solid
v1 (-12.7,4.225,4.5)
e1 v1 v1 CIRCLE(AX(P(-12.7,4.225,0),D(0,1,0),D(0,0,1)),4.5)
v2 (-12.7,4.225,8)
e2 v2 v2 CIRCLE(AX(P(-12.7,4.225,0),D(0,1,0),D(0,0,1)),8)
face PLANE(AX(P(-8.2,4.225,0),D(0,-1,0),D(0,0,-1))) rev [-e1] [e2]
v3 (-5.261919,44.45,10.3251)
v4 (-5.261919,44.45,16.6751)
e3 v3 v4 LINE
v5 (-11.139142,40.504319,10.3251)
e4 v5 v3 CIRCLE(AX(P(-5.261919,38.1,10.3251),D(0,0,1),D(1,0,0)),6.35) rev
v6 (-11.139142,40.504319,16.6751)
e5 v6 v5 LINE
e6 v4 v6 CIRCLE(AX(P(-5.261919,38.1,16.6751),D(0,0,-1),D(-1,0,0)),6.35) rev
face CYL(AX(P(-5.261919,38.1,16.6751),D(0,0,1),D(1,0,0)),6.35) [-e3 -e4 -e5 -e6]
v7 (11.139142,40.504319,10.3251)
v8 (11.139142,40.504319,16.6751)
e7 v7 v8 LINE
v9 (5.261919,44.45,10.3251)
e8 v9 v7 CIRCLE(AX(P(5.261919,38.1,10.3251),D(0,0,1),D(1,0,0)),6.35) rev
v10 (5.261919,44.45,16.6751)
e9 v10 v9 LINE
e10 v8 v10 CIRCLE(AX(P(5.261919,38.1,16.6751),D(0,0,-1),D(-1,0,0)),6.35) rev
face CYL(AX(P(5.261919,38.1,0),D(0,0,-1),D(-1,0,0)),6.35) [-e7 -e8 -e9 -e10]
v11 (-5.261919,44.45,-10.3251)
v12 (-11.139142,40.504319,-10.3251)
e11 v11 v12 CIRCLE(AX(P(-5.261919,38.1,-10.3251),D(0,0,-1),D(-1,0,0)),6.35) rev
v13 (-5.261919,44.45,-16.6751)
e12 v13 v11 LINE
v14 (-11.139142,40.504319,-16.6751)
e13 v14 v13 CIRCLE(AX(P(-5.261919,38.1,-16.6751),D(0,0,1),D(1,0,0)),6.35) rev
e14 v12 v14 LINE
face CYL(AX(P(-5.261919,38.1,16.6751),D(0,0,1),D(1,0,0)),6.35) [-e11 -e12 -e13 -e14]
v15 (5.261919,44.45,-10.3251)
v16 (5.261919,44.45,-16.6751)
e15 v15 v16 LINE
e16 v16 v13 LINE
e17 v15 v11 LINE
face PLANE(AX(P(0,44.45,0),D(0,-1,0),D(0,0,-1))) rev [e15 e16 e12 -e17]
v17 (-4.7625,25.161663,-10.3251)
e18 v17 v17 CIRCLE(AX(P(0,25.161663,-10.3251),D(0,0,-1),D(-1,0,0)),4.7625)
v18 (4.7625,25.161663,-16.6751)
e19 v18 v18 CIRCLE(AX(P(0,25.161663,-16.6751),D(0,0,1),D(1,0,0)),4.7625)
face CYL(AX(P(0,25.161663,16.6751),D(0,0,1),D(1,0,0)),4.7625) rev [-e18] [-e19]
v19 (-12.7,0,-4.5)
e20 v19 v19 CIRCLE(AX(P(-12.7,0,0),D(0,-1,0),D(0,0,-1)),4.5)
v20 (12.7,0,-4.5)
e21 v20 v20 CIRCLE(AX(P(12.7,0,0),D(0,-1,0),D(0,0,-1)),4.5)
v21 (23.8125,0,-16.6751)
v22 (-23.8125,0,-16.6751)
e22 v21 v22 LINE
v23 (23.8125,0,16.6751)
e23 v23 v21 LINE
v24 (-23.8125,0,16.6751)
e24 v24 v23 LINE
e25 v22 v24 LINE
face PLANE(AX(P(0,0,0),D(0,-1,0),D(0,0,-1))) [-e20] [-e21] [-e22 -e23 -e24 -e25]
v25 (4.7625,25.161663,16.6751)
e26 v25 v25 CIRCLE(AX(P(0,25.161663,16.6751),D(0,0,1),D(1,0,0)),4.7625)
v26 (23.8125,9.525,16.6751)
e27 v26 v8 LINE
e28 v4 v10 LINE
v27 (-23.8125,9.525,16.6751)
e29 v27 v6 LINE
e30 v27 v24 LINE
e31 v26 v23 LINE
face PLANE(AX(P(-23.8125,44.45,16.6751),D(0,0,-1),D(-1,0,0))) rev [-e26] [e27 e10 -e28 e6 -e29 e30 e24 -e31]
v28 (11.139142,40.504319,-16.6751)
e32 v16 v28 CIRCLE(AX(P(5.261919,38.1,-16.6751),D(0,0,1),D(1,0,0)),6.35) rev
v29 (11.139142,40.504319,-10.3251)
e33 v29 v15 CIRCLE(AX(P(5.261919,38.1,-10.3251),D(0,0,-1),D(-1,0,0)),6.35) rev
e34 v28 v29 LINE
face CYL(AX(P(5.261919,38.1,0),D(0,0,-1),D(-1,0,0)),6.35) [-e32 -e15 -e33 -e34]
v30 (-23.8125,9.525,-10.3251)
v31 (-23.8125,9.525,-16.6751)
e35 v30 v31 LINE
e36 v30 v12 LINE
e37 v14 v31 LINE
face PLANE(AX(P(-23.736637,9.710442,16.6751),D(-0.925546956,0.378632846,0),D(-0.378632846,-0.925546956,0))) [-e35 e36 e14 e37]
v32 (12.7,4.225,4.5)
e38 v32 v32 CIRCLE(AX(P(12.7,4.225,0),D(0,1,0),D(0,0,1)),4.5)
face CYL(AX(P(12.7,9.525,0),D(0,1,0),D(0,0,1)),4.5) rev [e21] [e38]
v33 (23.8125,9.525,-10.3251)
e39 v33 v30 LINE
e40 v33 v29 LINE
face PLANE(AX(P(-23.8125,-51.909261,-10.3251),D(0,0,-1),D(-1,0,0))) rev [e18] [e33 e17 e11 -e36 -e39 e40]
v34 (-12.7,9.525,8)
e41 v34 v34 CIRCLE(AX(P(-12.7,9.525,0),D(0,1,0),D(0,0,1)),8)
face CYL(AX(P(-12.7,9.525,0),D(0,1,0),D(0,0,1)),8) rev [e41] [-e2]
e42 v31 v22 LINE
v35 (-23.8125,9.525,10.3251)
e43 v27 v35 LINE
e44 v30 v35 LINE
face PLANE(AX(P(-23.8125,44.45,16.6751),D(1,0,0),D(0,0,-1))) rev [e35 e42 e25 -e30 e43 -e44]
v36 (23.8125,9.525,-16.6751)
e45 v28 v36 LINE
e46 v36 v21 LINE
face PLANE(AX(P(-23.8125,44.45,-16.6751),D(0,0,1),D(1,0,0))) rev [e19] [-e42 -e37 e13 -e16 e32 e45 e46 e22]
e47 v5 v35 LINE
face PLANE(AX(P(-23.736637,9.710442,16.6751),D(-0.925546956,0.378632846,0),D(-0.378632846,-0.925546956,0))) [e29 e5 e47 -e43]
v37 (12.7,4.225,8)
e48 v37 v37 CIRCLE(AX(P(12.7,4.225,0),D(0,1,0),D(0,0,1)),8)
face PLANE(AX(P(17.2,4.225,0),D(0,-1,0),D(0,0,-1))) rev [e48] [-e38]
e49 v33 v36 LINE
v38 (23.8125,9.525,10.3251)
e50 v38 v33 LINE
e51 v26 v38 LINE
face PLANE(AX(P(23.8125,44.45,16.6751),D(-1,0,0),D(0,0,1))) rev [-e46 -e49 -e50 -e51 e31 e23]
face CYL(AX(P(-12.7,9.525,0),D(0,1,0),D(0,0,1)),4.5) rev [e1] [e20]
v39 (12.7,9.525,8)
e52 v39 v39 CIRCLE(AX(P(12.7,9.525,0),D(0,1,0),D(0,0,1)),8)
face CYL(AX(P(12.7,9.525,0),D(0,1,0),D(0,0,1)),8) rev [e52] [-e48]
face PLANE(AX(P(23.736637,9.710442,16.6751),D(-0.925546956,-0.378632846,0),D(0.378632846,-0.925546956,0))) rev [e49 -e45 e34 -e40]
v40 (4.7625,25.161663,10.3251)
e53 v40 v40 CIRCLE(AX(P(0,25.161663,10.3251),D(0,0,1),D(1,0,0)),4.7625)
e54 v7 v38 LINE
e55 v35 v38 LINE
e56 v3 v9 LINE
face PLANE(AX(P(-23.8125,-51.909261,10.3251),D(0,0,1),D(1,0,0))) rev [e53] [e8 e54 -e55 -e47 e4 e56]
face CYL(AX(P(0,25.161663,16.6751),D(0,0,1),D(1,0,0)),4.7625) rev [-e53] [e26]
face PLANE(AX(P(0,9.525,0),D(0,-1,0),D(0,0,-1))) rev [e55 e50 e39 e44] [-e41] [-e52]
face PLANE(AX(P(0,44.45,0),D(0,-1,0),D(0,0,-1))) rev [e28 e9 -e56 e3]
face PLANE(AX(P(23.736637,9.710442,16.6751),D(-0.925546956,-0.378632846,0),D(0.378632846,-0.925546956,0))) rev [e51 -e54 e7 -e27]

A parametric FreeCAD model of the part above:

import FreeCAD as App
import Part
import Sketcher
from FreeCAD import Vector
Q = App.Units.Quantity


def edges_at(feature, points):
    """Names of the edges that pass closest to the given points."""
    edges = feature.Shape.Edges
    near = lambda p: min(range(len(edges)), key=lambda i: edges[i].distToShape(Part.Vertex(*p))[0])
    return sorted({f"Edge{near(p) + 1}" for p in points})


def add_polygon(sketch, points):
    """Adds a closed chain of lines whose ends are joined by coincident constraints."""
    first, n = sketch.GeometryCount, len(points)
    for a, b in zip(points, points[1:] + points[:1]):
        sketch.addGeometry(Part.LineSegment(App.Vector(*a, 0), App.Vector(*b, 0)), False)
    for i in range(n):
        sketch.addConstraint(Sketcher.Constraint("Coincident", first + i, 2, first + (i + 1) % n, 1))

doc = App.newDocument("Part")
params = doc.addObject("Spreadsheet::Sheet", "Params")
for row, (alias, value) in enumerate([
    ("sketch1_width", "1.875 in"),
    ("sketch1_height", "1.313 in"),
    ("pad1_length", "1.75 in"),
    ("sketch2_width", "1.875 in"),
    ("sketch2_height", "0.813 in"),
    ("pocket1_length", "1.375 in"),
    ("sketch3_width", "0.5625 in"),
    ("sketch3_height", "1.375 in"),
    ("hole_diameter", "9 mm"),
    ("hole_depth", "13.298127 mm"),
    ("hole_cbore_diameter", "16 mm"),
    ("hole_cbore_depth", "5.3 mm"),
    ("fillet_radius", "0.25 in"),
    ("sketch5_diameter", "0.375 in"),
    ("hole2_diameter", "0.375 in"),
], start=1):
    params.set(f"A{row}", alias)
    params.set(f"B{row}", "=" + value)
    params.setAlias(f"B{row}", alias)

body = doc.addObject("PartDesign::Body", "Body")

sketch1 = doc.addObject("Sketcher::SketchObject", "Sketch")
body.addObject(sketch1)
sketch1.AttachmentSupport = (doc.XZ_Plane, [""])
sketch1.MapMode = "FlatFace"
add_polygon(sketch1, [(-24, -17), (-24, 17), (24, 17), (24, -17)])
sketch1.addConstraint(Sketcher.Constraint("Vertical", 0))
sketch1.addConstraint(Sketcher.Constraint("Horizontal", 1))
sketch1.addConstraint(Sketcher.Constraint("Vertical", 2))
sketch1.addConstraint(Sketcher.Constraint("Horizontal", 3))
sketch1.addConstraint(Sketcher.Constraint("Symmetric", 0, 2, 2, 2, -1, 1))
sketch1.addConstraint(Sketcher.Constraint("DistanceX", 1, 1, 1, 2, Q("1.875 in")))
sketch1.addConstraint(Sketcher.Constraint("DistanceY", 0, 1, 0, 2, Q("1.313 in")))
sketch1.setExpression("Constraints[9]", "Params.sketch1_width")
sketch1.setExpression("Constraints[10]", "Params.sketch1_height")
pad1 = doc.addObject("PartDesign::Pad", "Pad")
body.addObject(pad1)
pad1.Profile = sketch1
pad1.setExpression("Length", "Params.pad1_length")
pad1.Reversed = True

sketch2 = doc.addObject("Sketcher::SketchObject", "Sketch001")
body.addObject(sketch2)
sketch2.AttachmentSupport = (doc.XZ_Plane, [""])
sketch2.MapMode = "FlatFace"
sketch2.AttachmentOffset = App.Placement(Vector(0, 0, -1.75 * 25.4), App.Rotation())
add_polygon(sketch2, [(-24, -10), (-24, 10), (24, 10), (24, -10)])
sketch2.addConstraint(Sketcher.Constraint("Vertical", 0))
sketch2.addConstraint(Sketcher.Constraint("Horizontal", 1))
sketch2.addConstraint(Sketcher.Constraint("Vertical", 2))
sketch2.addConstraint(Sketcher.Constraint("Horizontal", 3))
sketch2.addConstraint(Sketcher.Constraint("Symmetric", 0, 2, 2, 2, -1, 1))
sketch2.addConstraint(Sketcher.Constraint("DistanceX", 1, 1, 1, 2, Q("1.875 in")))
sketch2.addConstraint(Sketcher.Constraint("DistanceY", 0, 1, 0, 2, Q("0.813 in")))
sketch2.setExpression("Constraints[9]", "Params.sketch2_width")
sketch2.setExpression("Constraints[10]", "Params.sketch2_height")
pocket1 = doc.addObject("PartDesign::Pocket", "Pocket")
body.addObject(pocket1)
pocket1.Profile = sketch2
pocket1.setExpression("Length", "Params.pocket1_length")
pocket1.Reversed = True

sketch3 = doc.addObject("Sketcher::SketchObject", "Sketch002")
body.addObject(sketch3)
sketch3.AttachmentSupport = (doc.XY_Plane, [""])
sketch3.MapMode = "FlatFace"
sketch3.AttachmentOffset = App.Placement(Vector(0, 0, -0.6565 * 25.4), App.Rotation())
add_polygon(sketch3, [(-24, 44), (-10, 44), (-24, 10)])
add_polygon(sketch3, [(24, 10), (10, 44), (24, 44)])
sketch3.addConstraint(Sketcher.Constraint("Horizontal", 0))
sketch3.addConstraint(Sketcher.Constraint("Vertical", 2))
sketch3.addConstraint(Sketcher.Constraint("Horizontal", 4))
sketch3.addConstraint(Sketcher.Constraint("Vertical", 5))
sketch3.addConstraint(Sketcher.Constraint("Symmetric", 0, 2, 3, 2, -2))
sketch3.addConstraint(Sketcher.Constraint("Symmetric", 1, 2, 5, 2, -2))
sketch3.addConstraint(Sketcher.Constraint("DistanceX", 0, 1, 0, 2, Q("0.5625 in")))
sketch3.addConstraint(Sketcher.Constraint("DistanceY", 2, 1, 2, 2, Q("1.375 in")))
sketch3.addConstraint(Sketcher.Constraint("DistanceY", -1, 1, 0, 2, Q("1.75 in")))
sketch3.addConstraint(Sketcher.Constraint("DistanceX", 0, 2, 3, 2, Q("0.75 in")))
sketch3.setExpression("Constraints[12]", "Params.sketch3_width")
sketch3.setExpression("Constraints[13]", "Params.sketch3_height")
pocket2 = doc.addObject("PartDesign::Pocket", "Pocket001")
body.addObject(pocket2)
pocket2.Profile = sketch3
pocket2.Type = "ThroughAll"
pocket2.Midplane = True

sketch4 = doc.addObject("Sketcher::SketchObject", "Sketch003")
body.addObject(sketch4)
sketch4.AttachmentSupport = (doc.XZ_Plane, [""])
sketch4.MapMode = "FlatFace"
sketch4.AttachmentOffset = App.Placement(Vector(0, 0, -0.375 * 25.4), App.Rotation())
sketch4.addGeometry(Part.Circle(Vector(-12.7, 0, 0), Vector(0, 0, 1), 4.5), False)
sketch4.addGeometry(Part.Circle(Vector(12.7, 0, 0), Vector(0, 0, 1), 4.5), False)
sketch4.addConstraint(Sketcher.Constraint("Equal", 0, 1))
sketch4.addConstraint(Sketcher.Constraint("Symmetric", 0, 3, 1, 3, -1, 1))
sketch4.addConstraint(Sketcher.Constraint("PointOnObject", 0, 3, -1))
sketch4.addConstraint(Sketcher.Constraint("DistanceX", 0, 3, 1, 3, Q("1 in")))
sketch4.addConstraint(Sketcher.Constraint("Diameter", 0, Q("9 mm")))
doc.recompute()
hole = doc.addObject("PartDesign::Hole", "Hole")
body.addObject(hole)
hole.Profile = sketch4
hole.ThreadType = "None"
hole.setExpression("Diameter", "Params.hole_diameter")
hole.DepthType = "Dimension"
hole.setExpression("Depth", "Params.hole_depth")
hole.DrillPoint = "Angled"
hole.DrillPointAngle = 118
hole.HoleCutType = "Counterbore"
hole.setExpression("HoleCutDiameter", "Params.hole_cbore_diameter")
hole.setExpression("HoleCutDepth", "Params.hole_cbore_depth")
hole.Reversed = True
doc.recompute()

fillet = doc.addObject("PartDesign::Fillet", "Fillet")
body.addObject(fillet)
fillet.Base = (hole, edges_at(hole, [
    (9.525, 44.45, 13.5),
    (-9.525, 44.45, 13.5),
    (9.525, 44.45, -13.5),
    (-9.525, 44.45, -13.5),
]))
fillet.setExpression("Radius", "Params.fillet_radius")

sketch5 = doc.addObject("Sketcher::SketchObject", "Sketch004")
body.addObject(sketch5)
sketch5.AttachmentSupport = (doc.XY_Plane, [""])
sketch5.MapMode = "FlatFace"
sketch5.AttachmentOffset = App.Placement(Vector(0, 0, 0.6565 * 25.4), App.Rotation())
sketch5.addGeometry(Part.Circle(Vector(0, 25.2, 0), Vector(0, 0, 1), 4.8), False)
sketch5.addConstraint(Sketcher.Constraint("PointOnObject", 0, 3, -2))
sketch5.addConstraint(Sketcher.Constraint("Diameter", 0, Q("0.375 in")))
sketch5.addConstraint(Sketcher.Constraint("DistanceY", -1, 1, 0, 3, Q("25.161663 mm")))
sketch5.setExpression("Constraints[1]", "Params.sketch5_diameter")
doc.recompute()
hole2 = doc.addObject("PartDesign::Hole", "Hole001")
body.addObject(hole2)
hole2.Profile = sketch5
hole2.ThreadType = "None"
hole2.setExpression("Diameter", "Params.hole2_diameter")
hole2.DepthType = "ThroughAll"

doc.recompute()
